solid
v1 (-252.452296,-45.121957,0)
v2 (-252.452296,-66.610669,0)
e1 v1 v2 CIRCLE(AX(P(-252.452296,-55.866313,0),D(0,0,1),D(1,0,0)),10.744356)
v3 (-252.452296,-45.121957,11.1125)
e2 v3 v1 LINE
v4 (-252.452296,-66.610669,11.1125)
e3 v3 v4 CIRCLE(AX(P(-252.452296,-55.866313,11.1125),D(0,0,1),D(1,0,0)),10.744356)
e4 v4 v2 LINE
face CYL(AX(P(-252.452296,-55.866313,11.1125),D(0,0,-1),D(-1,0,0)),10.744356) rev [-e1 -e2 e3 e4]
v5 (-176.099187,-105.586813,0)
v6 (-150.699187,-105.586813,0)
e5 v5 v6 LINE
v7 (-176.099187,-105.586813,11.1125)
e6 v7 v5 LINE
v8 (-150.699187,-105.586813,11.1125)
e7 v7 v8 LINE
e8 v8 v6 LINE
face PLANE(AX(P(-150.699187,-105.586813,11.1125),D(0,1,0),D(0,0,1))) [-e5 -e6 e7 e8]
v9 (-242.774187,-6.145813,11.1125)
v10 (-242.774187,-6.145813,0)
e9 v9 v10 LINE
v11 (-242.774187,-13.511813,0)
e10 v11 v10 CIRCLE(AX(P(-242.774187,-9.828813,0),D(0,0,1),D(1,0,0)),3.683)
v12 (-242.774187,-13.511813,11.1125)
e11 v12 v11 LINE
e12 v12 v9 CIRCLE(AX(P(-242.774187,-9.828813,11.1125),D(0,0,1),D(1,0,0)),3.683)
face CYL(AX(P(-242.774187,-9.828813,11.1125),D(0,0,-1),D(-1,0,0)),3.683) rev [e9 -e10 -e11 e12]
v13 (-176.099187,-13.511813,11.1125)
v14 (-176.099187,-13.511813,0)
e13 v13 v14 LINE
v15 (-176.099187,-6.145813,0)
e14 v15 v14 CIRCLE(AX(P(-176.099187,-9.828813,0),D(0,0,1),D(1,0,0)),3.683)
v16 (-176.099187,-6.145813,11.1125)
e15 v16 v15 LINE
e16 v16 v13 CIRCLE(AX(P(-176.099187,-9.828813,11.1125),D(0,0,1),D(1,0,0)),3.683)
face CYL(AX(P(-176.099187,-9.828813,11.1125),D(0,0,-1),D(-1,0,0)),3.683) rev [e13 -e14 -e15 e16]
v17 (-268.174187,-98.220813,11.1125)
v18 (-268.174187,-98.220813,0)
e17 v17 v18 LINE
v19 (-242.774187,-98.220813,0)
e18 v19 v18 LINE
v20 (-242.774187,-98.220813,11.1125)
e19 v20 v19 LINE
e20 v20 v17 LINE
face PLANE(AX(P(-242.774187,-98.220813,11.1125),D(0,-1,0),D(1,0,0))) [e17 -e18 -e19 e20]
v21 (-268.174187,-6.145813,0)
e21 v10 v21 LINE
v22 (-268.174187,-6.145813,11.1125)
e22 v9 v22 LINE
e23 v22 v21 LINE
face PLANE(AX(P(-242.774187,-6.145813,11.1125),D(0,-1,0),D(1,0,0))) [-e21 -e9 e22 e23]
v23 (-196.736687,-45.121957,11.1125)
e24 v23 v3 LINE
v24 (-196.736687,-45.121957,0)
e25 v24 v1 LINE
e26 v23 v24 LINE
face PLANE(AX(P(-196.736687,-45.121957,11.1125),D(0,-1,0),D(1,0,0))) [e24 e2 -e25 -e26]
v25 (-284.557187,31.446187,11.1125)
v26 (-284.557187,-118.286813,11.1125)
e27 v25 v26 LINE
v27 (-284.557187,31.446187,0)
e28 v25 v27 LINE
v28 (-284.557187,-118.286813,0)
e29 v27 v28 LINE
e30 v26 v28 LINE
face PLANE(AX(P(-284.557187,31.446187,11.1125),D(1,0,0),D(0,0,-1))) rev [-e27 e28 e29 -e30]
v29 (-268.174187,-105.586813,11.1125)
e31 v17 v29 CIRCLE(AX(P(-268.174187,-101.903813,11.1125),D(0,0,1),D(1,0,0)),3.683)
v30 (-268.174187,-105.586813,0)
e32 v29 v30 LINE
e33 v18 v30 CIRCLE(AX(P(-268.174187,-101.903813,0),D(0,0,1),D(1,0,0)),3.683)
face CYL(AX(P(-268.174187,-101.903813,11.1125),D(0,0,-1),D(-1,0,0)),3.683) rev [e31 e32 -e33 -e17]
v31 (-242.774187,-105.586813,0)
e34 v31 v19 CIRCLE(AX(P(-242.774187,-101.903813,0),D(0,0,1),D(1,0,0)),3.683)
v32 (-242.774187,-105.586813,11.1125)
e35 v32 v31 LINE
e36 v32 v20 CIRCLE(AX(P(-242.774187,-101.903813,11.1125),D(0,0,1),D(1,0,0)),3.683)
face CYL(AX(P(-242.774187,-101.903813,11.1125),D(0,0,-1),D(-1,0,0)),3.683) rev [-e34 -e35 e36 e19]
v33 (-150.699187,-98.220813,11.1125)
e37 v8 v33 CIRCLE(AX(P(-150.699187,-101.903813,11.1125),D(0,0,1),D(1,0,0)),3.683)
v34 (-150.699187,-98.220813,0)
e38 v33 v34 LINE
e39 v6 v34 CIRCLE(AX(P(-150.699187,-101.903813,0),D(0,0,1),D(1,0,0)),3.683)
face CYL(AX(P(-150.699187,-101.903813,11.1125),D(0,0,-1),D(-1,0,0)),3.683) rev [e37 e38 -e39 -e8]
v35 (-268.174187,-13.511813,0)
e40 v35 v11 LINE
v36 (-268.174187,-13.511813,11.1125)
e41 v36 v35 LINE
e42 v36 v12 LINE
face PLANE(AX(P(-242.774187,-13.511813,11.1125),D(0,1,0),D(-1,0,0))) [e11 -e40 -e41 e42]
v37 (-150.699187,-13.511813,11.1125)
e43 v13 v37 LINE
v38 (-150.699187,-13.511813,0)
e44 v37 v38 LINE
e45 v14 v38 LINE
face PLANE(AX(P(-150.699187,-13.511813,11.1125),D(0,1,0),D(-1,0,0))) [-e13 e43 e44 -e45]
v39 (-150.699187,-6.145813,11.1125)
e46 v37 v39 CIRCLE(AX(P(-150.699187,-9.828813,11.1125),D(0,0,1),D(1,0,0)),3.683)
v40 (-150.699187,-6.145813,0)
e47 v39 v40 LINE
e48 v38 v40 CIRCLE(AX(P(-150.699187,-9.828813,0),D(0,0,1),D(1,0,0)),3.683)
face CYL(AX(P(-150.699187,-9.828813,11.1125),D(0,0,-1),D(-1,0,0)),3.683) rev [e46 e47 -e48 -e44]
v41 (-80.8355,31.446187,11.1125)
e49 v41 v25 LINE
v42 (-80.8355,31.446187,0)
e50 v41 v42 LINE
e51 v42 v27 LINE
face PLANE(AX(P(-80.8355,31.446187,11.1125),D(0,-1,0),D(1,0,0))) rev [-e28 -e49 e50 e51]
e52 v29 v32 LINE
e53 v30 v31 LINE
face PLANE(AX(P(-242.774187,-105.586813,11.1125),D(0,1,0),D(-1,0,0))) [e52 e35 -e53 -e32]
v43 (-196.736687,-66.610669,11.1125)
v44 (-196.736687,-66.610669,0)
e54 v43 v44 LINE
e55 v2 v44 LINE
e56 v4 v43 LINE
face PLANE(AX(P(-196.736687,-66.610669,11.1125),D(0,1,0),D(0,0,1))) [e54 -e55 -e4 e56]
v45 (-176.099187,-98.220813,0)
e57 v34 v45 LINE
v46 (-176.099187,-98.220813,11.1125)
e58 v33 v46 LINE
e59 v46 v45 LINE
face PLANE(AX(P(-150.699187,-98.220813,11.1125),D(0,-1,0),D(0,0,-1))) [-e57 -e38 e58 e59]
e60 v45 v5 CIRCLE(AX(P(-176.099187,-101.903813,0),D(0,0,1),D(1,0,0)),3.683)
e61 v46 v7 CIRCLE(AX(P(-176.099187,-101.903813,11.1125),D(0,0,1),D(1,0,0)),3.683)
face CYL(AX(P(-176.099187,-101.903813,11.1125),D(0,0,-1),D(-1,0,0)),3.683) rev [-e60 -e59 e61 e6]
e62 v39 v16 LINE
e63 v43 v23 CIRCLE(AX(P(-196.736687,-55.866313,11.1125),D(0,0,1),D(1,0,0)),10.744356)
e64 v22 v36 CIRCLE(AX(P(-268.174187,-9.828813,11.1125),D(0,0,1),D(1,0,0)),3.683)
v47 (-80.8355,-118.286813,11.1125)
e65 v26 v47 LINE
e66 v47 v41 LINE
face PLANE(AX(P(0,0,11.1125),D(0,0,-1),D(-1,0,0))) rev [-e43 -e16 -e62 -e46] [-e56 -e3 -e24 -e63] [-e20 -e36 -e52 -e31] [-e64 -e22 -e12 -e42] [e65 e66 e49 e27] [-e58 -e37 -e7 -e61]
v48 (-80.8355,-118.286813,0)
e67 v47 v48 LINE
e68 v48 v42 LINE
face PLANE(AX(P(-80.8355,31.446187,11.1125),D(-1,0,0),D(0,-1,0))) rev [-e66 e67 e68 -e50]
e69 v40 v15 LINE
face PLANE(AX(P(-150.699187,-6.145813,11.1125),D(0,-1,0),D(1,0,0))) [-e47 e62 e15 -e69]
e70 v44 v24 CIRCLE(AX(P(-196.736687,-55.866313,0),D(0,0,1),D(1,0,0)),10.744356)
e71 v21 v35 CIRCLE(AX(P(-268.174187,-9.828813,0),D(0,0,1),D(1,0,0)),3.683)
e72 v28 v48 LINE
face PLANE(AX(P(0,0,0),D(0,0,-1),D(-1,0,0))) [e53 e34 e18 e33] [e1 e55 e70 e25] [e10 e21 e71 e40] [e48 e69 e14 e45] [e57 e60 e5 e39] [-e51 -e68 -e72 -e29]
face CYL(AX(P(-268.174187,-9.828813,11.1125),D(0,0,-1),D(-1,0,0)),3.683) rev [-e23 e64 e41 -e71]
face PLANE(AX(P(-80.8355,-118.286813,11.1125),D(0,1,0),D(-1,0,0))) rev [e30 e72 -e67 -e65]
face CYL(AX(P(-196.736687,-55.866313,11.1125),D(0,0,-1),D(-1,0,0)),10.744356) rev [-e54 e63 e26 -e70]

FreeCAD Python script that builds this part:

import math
import FreeCAD as App
import Part
import Sketcher
Q = App.Units.Quantity


def add_polygon(sketch, points):
    """Adds a closed chain of lines whose ends are joined by coincident constraints."""
    first, n = sketch.GeometryCount, len(points)
    for a, b in zip(points, points[1:] + points[:1]):
        sketch.addGeometry(Part.LineSegment(App.Vector(*a, 0), App.Vector(*b, 0)), False)
    for i in range(n):
        sketch.addConstraint(Sketcher.Constraint("Coincident", first + i, 2, first + (i + 1) % n, 1))

doc = App.newDocument("Part")
body = doc.addObject("PartDesign::Body", "Body")

# Sketch on XY plane
sketch1 = body.newObject("Sketcher::SketchObject", "Sketch")
sketch1.AttachmentSupport = (doc.getObject("XY_Plane"), [""])
sketch1.MapMode = "FlatFace"
add_polygon(sketch1, [(-284.557187, 31.446187), (-284.557187, -118.286813), (-80.8355, -118.286813), (-80.8355, 31.446187)])  # lines 0-3
sketch1.addGeometry(Part.ArcOfCircle(Part.Circle(App.Vector(-242.774187, -101.903813, 0), App.Vector(0, 0, 1), 3.683), math.radians(-90), math.radians(90)), False)  # 4
sketch1.addGeometry(Part.LineSegment(App.Vector(-242.774187, -105.586813, 0), App.Vector(-268.174187, -105.586813, 0)), False)  # 5
sketch1.addGeometry(Part.ArcOfCircle(Part.Circle(App.Vector(-268.174187, -101.903813, 0), App.Vector(0, 0, 1), 3.683), math.radians(90), math.radians(270)), False)  # 6
sketch1.addGeometry(Part.LineSegment(App.Vector(-268.174187, -98.220813, 0), App.Vector(-242.774187, -98.220813, 0)), False)  # 7
sketch1.addGeometry(Part.ArcOfCircle(Part.Circle(App.Vector(-196.736687, -55.866313, 0), App.Vector(0, 0, 1), 10.744356), math.radians(-90), math.radians(90)), False)  # 8
sketch1.addGeometry(Part.LineSegment(App.Vector(-196.736687, -66.610669, 0), App.Vector(-252.452296, -66.610669, 0)), False)  # 9
sketch1.addGeometry(Part.ArcOfCircle(Part.Circle(App.Vector(-252.452296, -55.866313, 0), App.Vector(0, 0, 1), 10.744356), math.radians(90), math.radians(270)), False)  # 10
sketch1.addGeometry(Part.LineSegment(App.Vector(-252.452296, -45.121957, 0), App.Vector(-196.736687, -45.121957, 0)), False)  # 11
sketch1.addGeometry(Part.ArcOfCircle(Part.Circle(App.Vector(-150.699187, -101.903813, 0), App.Vector(0, 0, 1), 3.683), math.radians(-90), math.radians(90)), False)  # 12
sketch1.addGeometry(Part.LineSegment(App.Vector(-150.699187, -105.586813, 0), App.Vector(-176.099187, -105.586813, 0)), False)  # 13
sketch1.addGeometry(Part.ArcOfCircle(Part.Circle(App.Vector(-176.099187, -101.903813, 0), App.Vector(0, 0, 1), 3.683), math.radians(90), math.radians(270)), False)  # 14
sketch1.addGeometry(Part.LineSegment(App.Vector(-176.099187, -98.220813, 0), App.Vector(-150.699187, -98.220813, 0)), False)  # 15
sketch1.addGeometry(Part.ArcOfCircle(Part.Circle(App.Vector(-242.774187, -9.828813, 0), App.Vector(0, 0, 1), 3.683), math.radians(-90), math.radians(90)), False)  # 16
sketch1.addGeometry(Part.LineSegment(App.Vector(-242.774187, -13.511813, 0), App.Vector(-268.174187, -13.511813, 0)), False)  # 17
sketch1.addGeometry(Part.ArcOfCircle(Part.Circle(App.Vector(-268.174187, -9.828813, 0), App.Vector(0, 0, 1), 3.683), math.radians(90), math.radians(270)), False)  # 18
sketch1.addGeometry(Part.LineSegment(App.Vector(-268.174187, -6.145813, 0), App.Vector(-242.774187, -6.145813, 0)), False)  # 19
sketch1.addGeometry(Part.ArcOfCircle(Part.Circle(App.Vector(-150.699187, -9.828813, 0), App.Vector(0, 0, 1), 3.683), math.radians(-90), math.radians(90)), False)  # 20
sketch1.addGeometry(Part.LineSegment(App.Vector(-150.699187, -13.511813, 0), App.Vector(-176.099187, -13.511813, 0)), False)  # 21
sketch1.addGeometry(Part.ArcOfCircle(Part.Circle(App.Vector(-176.099187, -9.828813, 0), App.Vector(0, 0, 1), 3.683), math.radians(90), math.radians(270)), False)  # 22
sketch1.addGeometry(Part.LineSegment(App.Vector(-176.099187, -6.145813, 0), App.Vector(-150.699187, -6.145813, 0)), False)  # 23
sketch1.addConstraint([
    Sketcher.Constraint("Tangent", 4, 1, 5, 1),
    Sketcher.Constraint("Tangent", 5, 2, 6, 2),
    Sketcher.Constraint("Tangent", 6, 1, 7, 1),
    Sketcher.Constraint("Tangent", 7, 2, 4, 2),
    Sketcher.Constraint("Tangent", 8, 1, 9, 1),
    Sketcher.Constraint("Tangent", 9, 2, 10, 2),
    Sketcher.Constraint("Tangent", 10, 1, 11, 1),
    Sketcher.Constraint("Tangent", 11, 2, 8, 2),
    Sketcher.Constraint("Tangent", 12, 1, 13, 1),
    Sketcher.Constraint("Tangent", 13, 2, 14, 2),
    Sketcher.Constraint("Tangent", 14, 1, 15, 1),
    Sketcher.Constraint("Tangent", 15, 2, 12, 2),
    Sketcher.Constraint("Tangent", 16, 1, 17, 1),
    Sketcher.Constraint("Tangent", 17, 2, 18, 2),
    Sketcher.Constraint("Tangent", 18, 1, 19, 1),
    Sketcher.Constraint("Tangent", 19, 2, 16, 2),
    Sketcher.Constraint("Tangent", 20, 1, 21, 1),
    Sketcher.Constraint("Tangent", 21, 2, 22, 2),
    Sketcher.Constraint("Tangent", 22, 1, 23, 1),
    Sketcher.Constraint("Tangent", 23, 2, 20, 2),
    Sketcher.Constraint("Vertical", 0),
    Sketcher.Constraint("Horizontal", 1),
    Sketcher.Constraint("Vertical", 2),
    Sketcher.Constraint("Horizontal", 3),
    Sketcher.Constraint("Horizontal", 5),
    Sketcher.Constraint("Horizontal", 7),
    Sketcher.Constraint("Horizontal", 9),
    Sketcher.Constraint("Horizontal", 11),
    Sketcher.Constraint("Horizontal", 13),
    Sketcher.Constraint("Horizontal", 15),
    Sketcher.Constraint("Horizontal", 17),
    Sketcher.Constraint("Horizontal", 19),
    Sketcher.Constraint("Horizontal", 21),
    Sketcher.Constraint("Horizontal", 23),
    Sketcher.Constraint("Equal", 6, 12),
    Sketcher.Constraint("Equal", 14, 16),
    Sketcher.Constraint("Equal", 18, 20),
    Sketcher.Constraint("Horizontal", 6, 3, 12, 3),
    Sketcher.Constraint("Horizontal", 18, 3, 20, 3),
    Sketcher.Constraint("Vertical", 4, 3, 16, 3),
    Sketcher.Constraint("Vertical", 6, 3, 18, 3),
    Sketcher.Constraint("Vertical", 12, 3, 20, 3),
    Sketcher.Constraint("Vertical", 14, 3, 22, 3),
    Sketcher.Constraint("Equal", 7, 13),
    Sketcher.Constraint("DistanceX", 5, 2, 5, 1, Q("1 in")),
    Sketcher.Constraint("Radius", 4, Q("0.145 in")),
    Sketcher.Constraint("DistanceY", 0, 2, 4, 1, Q("0.5 in")),
    Sketcher.Constraint("DistanceY", 0, 2, 0, 1, Q("5.895 in")),
    Sketcher.Constraint("DistanceX", 0, 2, 14, 3, Q("4.27 in")),
    Sketcher.Constraint("DistanceY", 1, 2, 20, 3, Q("4.27 in")),
    Sketcher.Constraint("DistanceX", 4, 3, 8, 3, Q("1.8125 in")),
    Sketcher.Constraint("DistanceY", 4, 3, 8, 3, Q("1.8125 in")),
    Sketcher.Constraint("DistanceX", 8, 3, 12, 3, Q("1.8125 in")),
    Sketcher.Constraint("DistanceX", 1, 2, -1, 1, Q("3.1825 in")),
    Sketcher.Constraint("Radius", 8, 10.744356),
    Sketcher.Constraint("DistanceX", 9, 2, 9, 1, 55.715609),
    Sketcher.Constraint("DistanceX", 1, 1, 1, 2, 203.721687),
    Sketcher.Constraint("DistanceY", 8, 1, -1, 1, 66.610669),
])
pad1 = body.newObject("PartDesign::Pad", "Pad")
pad1.Profile = sketch1
pad1.Length = Q("0.4375 in")

doc.recompute()
